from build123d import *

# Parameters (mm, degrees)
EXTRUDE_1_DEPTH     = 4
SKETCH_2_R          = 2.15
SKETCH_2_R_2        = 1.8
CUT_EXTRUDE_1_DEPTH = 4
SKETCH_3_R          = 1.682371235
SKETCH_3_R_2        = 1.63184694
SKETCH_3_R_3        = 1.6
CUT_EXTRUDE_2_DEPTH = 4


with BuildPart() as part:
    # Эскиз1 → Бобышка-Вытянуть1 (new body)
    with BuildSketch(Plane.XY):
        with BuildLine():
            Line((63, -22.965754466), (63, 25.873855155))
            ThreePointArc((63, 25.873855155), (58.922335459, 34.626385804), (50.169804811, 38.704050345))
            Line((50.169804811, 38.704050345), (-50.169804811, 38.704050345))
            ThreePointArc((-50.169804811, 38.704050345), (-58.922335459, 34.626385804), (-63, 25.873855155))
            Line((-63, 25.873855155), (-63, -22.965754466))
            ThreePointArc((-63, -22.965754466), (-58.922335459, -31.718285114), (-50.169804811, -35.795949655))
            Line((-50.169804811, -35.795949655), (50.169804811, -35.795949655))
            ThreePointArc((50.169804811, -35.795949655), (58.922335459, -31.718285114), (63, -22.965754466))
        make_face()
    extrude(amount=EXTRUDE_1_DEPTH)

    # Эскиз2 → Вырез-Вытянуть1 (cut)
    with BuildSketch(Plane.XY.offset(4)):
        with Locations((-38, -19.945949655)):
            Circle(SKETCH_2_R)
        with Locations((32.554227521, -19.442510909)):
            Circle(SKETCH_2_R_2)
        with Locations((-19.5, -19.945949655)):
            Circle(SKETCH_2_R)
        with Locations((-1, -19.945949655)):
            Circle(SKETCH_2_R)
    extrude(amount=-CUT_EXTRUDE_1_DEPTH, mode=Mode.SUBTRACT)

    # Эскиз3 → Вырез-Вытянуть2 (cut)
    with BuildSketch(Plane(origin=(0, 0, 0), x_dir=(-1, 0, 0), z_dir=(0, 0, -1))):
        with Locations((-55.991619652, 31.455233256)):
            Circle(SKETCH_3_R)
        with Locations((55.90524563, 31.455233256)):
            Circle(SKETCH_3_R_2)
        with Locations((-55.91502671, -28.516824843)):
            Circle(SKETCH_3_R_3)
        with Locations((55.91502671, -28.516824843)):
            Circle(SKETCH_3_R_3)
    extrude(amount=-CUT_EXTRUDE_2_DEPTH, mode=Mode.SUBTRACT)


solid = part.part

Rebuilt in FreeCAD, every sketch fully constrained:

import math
import FreeCAD as App
import Part
import Sketcher

V = App.Vector
Q = App.Units.Quantity

doc = App.newDocument("Part")
params = doc.addObject("Spreadsheet::Sheet", "Params")
for row, (alias, value) in enumerate([
    ("pad1_length", "4 mm"),
    ("sketch2_diameter", "4.3 mm"),
    ("sketch2_diameter2", "3.6 mm"),
    ("pocket1_length", "4 mm"),
    ("sketch3_diameter", "3.2 mm"),
    ("pocket2_length", "4 mm"),
], start=1):
    params.set(f"A{row}", alias)
    params.set(f"B{row}", "=" + value)
    params.setAlias(f"B{row}", alias)

body = doc.addObject("PartDesign::Body", "Body")

# Sketch on XY plane
sketch1 = body.newObject("Sketcher::SketchObject", "Sketch")
sketch1.AttachmentSupport = (doc.getObject("XY_Plane"), [""])
sketch1.MapMode = "FlatFace"
sketch1.addGeometry([
    Part.LineSegment(V(63, -23, 0), V(63, 26, 0)),  # 0
    Part.ArcOfCircle(Part.Circle(V(49, 25, 0), V(0, 0, 1), 14), math.radians(5), math.radians(85)),  # 1
    Part.LineSegment(V(50, 39, 0), V(-50, 39, 0)),  # 2
    Part.ArcOfCircle(Part.Circle(V(-49, 25, 0), V(0, 0, 1), 14), math.radians(95), math.radians(175)),  # 3
    Part.LineSegment(V(-63, 26, 0), V(-63, -23, 0)),  # 4
    Part.ArcOfCircle(Part.Circle(V(-49, -22, 0), V(0, 0, 1), 14), math.radians(-175), math.radians(-95)),  # 5
    Part.LineSegment(V(-50, -36, 0), V(50, -36, 0)),  # 6
    Part.ArcOfCircle(Part.Circle(V(49, -22, 0), V(0, 0, 1), 14), math.radians(-85), math.radians(-5)),  # 7
], False)
sketch1.addConstraint([
    Sketcher.Constraint("Coincident", 0, 2, 1, 1),
    Sketcher.Constraint("Coincident", 1, 2, 2, 1),
    Sketcher.Constraint("Coincident", 2, 2, 3, 1),
    Sketcher.Constraint("Coincident", 3, 2, 4, 1),
    Sketcher.Constraint("Coincident", 4, 2, 5, 1),
    Sketcher.Constraint("Coincident", 5, 2, 6, 1),
    Sketcher.Constraint("Coincident", 6, 2, 7, 1),
    Sketcher.Constraint("Coincident", 7, 2, 0, 1),
    Sketcher.Constraint("Vertical", 0),
    Sketcher.Constraint("Horizontal", 2),
    Sketcher.Constraint("Vertical", 4),
    Sketcher.Constraint("Horizontal", 6),
    Sketcher.Constraint("Equal", 1, 3),
    Sketcher.Constraint("Equal", 3, 5),
    Sketcher.Constraint("Equal", 5, 7),
    Sketcher.Constraint("Symmetric", 1, 3, 3, 3, -2),
    Sketcher.Constraint("Symmetric", 5, 3, 7, 3, -2),
    Sketcher.Constraint("Horizontal", 0, 2, 3, 2),
    Sketcher.Constraint("Vertical", 3, 3, 5, 3),
    Sketcher.Constraint("Vertical", 2, 2, 5, 2),
    Sketcher.Constraint("DistanceX", -1, 1, 0, 2, Q("63 mm")),
    Sketcher.Constraint("DistanceY", 5, 2, 2, 2, Q("74.5 mm")),
    Sketcher.Constraint("Radius", 1, Q("14.102328 mm")),
    Sketcher.Constraint("DistanceX", 2, 2, 2, 1, Q("100.33961 mm")),
    Sketcher.Constraint("DistanceY", 0, 1, 0, 2, Q("48.83961 mm")),
    Sketcher.Constraint("DistanceY", -1, 1, 1, 2, Q("38.70405 mm")),
])
pad1 = body.newObject("PartDesign::Pad", "Pad")
pad1.Profile = sketch1
pad1.setExpression("Length", "Params.pad1_length")

# Sketch on XY plane
sketch2 = body.newObject("Sketcher::SketchObject", "Sketch001")
sketch2.AttachmentSupport = (doc.getObject("XY_Plane"), [""])
sketch2.MapMode = "FlatFace"
sketch2.AttachmentOffset = App.Placement(V(0, 0, 4), App.Rotation())
sketch2.addGeometry([
    Part.Circle(V(-38, -19.9, 0), V(0, 0, 1), 2.1),
    Part.Circle(V(32.6, -19.4, 0), V(0, 0, 1), 1.8),
    Part.Circle(V(-19.5, -19.9, 0), V(0, 0, 1), 2.1),
    Part.Circle(V(-1, -19.9, 0), V(0, 0, 1), 2.1),
], False)
sketch2.addConstraint([
    Sketcher.Constraint("Equal", 0, 2),
    Sketcher.Constraint("Equal", 2, 3),
    Sketcher.Constraint("Horizontal", 0, 3, 2, 3),
    Sketcher.Constraint("Horizontal", 2, 3, 3, 3),
    Sketcher.Constraint("Diameter", 0, Q("4.3 mm")),
    Sketcher.Constraint("Diameter", 1, Q("3.6 mm")),
    Sketcher.Constraint("DistanceX", 0, 3, -1, 1, Q("38 mm")),
    Sketcher.Constraint("DistanceX", 3, 3, -1, 1, Q("1 mm")),
    Sketcher.Constraint("DistanceX", 2, 3, -1, 1, Q("19.5 mm")),
    Sketcher.Constraint("DistanceY", 0, 3, -1, 1, Q("19.94595 mm")),
    Sketcher.Constraint("DistanceY", 1, 3, -1, 1, Q("19.442511 mm")),
    Sketcher.Constraint("DistanceX", -1, 1, 1, 3, Q("32.554228 mm")),
])
sketch2.setExpression("Constraints[4]", "Params.sketch2_diameter")
sketch2.setExpression("Constraints[5]", "Params.sketch2_diameter2")
pocket1 = body.newObject("PartDesign::Pocket", "Pocket")
pocket1.Profile = sketch2
pocket1.setExpression("Length", "Params.pocket1_length")

# Sketch on XY plane
sketch3 = body.newObject("Sketcher::SketchObject", "Sketch002")
sketch3.AttachmentSupport = (doc.getObject("XY_Plane"), [""])
sketch3.MapMode = "FlatFace"
sketch3.addGeometry([
    Part.Circle(V(56, 31.5, 0), V(0, 0, 1), 1.7),
    Part.Circle(V(-55.9, 31.5, 0), V(0, 0, 1), 1.6),
    Part.Circle(V(55.9, -28.5, 0), V(0, 0, 1), 1.6),
    Part.Circle(V(-55.9, -28.5, 0), V(0, 0, 1), 1.6),
], False)
sketch3.addConstraint([
    Sketcher.Constraint("Equal", 2, 3),
    Sketcher.Constraint("Symmetric", 2, 3, 3, 3, -2),
    Sketcher.Constraint("Horizontal", 0, 3, 1, 3),
    Sketcher.Constraint("Diameter", 2, Q("3.2 mm")),
    Sketcher.Constraint("Diameter", 0, Q("3.364742 mm")),
    Sketcher.Constraint("Diameter", 1, Q("3.263694 mm")),
    Sketcher.Constraint("DistanceX", -1, 1, 0, 3, Q("55.99162 mm")),
    Sketcher.Constraint("DistanceY", 2, 3, 0, 3, Q("59.972058 mm")),
    Sketcher.Constraint("DistanceX", 3, 3, 1, 3, Q("0.009781 mm")),
    Sketcher.Constraint("DistanceY", -1, 1, 0, 3, Q("31.455233 mm")),
    Sketcher.Constraint("DistanceX", 1, 3, -1, 1, Q("55.905246 mm")),
])
sketch3.setExpression("Constraints[3]", "Params.sketch3_diameter")
pocket2 = body.newObject("PartDesign::Pocket", "Pocket001")
pocket2.Profile = sketch3
pocket2.setExpression("Length", "Params.pocket2_length")
pocket2.Reversed = True

doc.recompute()
